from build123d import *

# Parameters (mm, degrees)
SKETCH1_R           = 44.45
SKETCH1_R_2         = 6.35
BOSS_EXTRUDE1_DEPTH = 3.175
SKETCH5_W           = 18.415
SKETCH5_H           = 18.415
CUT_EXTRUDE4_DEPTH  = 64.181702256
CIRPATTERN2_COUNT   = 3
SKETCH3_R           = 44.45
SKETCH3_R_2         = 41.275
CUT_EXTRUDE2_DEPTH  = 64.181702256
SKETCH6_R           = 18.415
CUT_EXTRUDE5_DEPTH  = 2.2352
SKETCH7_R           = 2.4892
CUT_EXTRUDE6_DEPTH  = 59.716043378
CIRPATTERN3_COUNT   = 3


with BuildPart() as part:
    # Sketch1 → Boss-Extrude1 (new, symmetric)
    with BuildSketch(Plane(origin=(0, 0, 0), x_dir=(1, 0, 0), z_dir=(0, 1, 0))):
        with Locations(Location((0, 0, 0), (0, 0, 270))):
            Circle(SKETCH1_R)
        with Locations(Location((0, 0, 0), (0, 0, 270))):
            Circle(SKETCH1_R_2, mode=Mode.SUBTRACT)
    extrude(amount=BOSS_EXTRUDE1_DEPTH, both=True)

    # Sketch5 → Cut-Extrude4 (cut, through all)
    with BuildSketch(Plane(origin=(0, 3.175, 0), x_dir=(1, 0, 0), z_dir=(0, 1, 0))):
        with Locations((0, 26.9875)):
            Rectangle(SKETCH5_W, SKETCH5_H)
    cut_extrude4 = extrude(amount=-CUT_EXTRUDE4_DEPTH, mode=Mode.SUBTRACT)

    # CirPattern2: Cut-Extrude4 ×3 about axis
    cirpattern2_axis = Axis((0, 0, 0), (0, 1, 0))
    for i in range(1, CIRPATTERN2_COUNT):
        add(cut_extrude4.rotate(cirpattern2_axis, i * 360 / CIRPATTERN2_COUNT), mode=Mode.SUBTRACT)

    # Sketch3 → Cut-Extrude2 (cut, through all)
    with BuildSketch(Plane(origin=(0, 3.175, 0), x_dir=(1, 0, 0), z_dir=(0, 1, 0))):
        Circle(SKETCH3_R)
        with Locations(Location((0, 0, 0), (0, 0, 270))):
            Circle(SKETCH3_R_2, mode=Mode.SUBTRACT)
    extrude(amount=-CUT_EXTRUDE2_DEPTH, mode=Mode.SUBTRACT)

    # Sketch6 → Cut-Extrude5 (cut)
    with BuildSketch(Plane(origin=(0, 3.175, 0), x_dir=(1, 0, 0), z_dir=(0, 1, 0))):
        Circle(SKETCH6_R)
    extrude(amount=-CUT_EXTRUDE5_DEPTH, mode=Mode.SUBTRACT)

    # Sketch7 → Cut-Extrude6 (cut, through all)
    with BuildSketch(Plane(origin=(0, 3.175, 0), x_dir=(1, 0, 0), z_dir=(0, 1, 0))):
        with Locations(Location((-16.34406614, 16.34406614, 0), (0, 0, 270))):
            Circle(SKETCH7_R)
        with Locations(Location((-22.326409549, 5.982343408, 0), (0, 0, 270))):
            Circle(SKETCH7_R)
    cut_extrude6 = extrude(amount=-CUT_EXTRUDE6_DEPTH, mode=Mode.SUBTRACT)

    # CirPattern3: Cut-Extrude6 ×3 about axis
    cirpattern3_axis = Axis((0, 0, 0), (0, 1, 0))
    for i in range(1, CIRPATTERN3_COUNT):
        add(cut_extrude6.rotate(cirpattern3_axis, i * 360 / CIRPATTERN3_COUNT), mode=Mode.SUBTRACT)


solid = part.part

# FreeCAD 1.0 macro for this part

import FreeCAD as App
import Part
import Sketcher
from FreeCAD import Vector
Q = App.Units.Quantity


def add_polygon(sketch, points):
    """Adds a closed chain of lines whose ends are joined by coincident constraints."""
    first, n = sketch.GeometryCount, len(points)
    for a, b in zip(points, points[1:] + points[:1]):
        sketch.addGeometry(Part.LineSegment(App.Vector(*a, 0), App.Vector(*b, 0)), False)
    for i in range(n):
        sketch.addConstraint(Sketcher.Constraint("Coincident", first + i, 2, first + (i + 1) % n, 1))

doc = App.newDocument("Part")
params = doc.addObject("Spreadsheet::Sheet", "Params")
for row, (alias, value) in enumerate([
    ("sketch1_diameter", "3.5 in"),
    ("sketch1_diameter2", "0.5 in"),
    ("pad1_length", "0.25 in"),
    ("sketch2_width", "0.725 in"),
    ("sketch3_diameter", "3.5 in"),
    ("sketch3_diameter2", "3.25 in"),
    ("sketch4_diameter", "1.45 in"),
    ("pocket3_length", "0.088 in"),
    ("sketch5_diameter", "0.196 in"),
], start=1):
    params.set(f"A{row}", alias)
    params.set(f"B{row}", "=" + value)
    params.setAlias(f"B{row}", alias)

body = doc.addObject("PartDesign::Body", "Body")

sketch1 = body.newObject("Sketcher::SketchObject", "Sketch")
sketch1.AttachmentSupport = (doc.getObject("XZ_Plane"), [""])
sketch1.MapMode = "FlatFace"
sketch1.addGeometry(Part.Circle(Vector(0, 0, 0), Vector(0, 0, 1), 44), False)
sketch1.addGeometry(Part.Circle(Vector(0, 0, 0), Vector(0, 0, 1), 6), False)
sketch1.addConstraint(Sketcher.Constraint("Coincident", 0, 3, -1, 1))
sketch1.addConstraint(Sketcher.Constraint("Coincident", 1, 3, -1, 1))
sketch1.addConstraint(Sketcher.Constraint("Diameter", 0, Q("3.5 in")))
sketch1.addConstraint(Sketcher.Constraint("Diameter", 1, Q("0.5 in")))
sketch1.setExpression("Constraints[2]", "Params.sketch1_diameter")
sketch1.setExpression("Constraints[3]", "Params.sketch1_diameter2")
pad1 = body.newObject("PartDesign::Pad", "Pad")
pad1.Profile = sketch1
pad1.setExpression("Length", "Params.pad1_length")
pad1.Midplane = True

sketch2 = body.newObject("Sketcher::SketchObject", "Sketch001")
sketch2.AttachmentSupport = (doc.getObject("XZ_Plane"), [""])
sketch2.MapMode = "FlatFace"
sketch2.AttachmentOffset = App.Placement(Vector(0, 0, -0.125 * 25.4), App.Rotation())
add_polygon(sketch2, [(-9, -36), (-9, -18), (9, -18), (9, -36)])
sketch2.addConstraint(Sketcher.Constraint("Vertical", 0))
sketch2.addConstraint(Sketcher.Constraint("Horizontal", 1))
sketch2.addConstraint(Sketcher.Constraint("Vertical", 2))
sketch2.addConstraint(Sketcher.Constraint("Horizontal", 3))
sketch2.addConstraint(Sketcher.Constraint("Equal", 3, 0))
sketch2.addConstraint(Sketcher.Constraint("DistanceY", 0, 2, -1, 1, Q("0.7 in")))
sketch2.addConstraint(Sketcher.Constraint("DistanceX", 1, 1, 1, 2, Q("0.725 in")))
sketch2.addConstraint(Sketcher.Constraint("DistanceX", 0, 2, -1, 1, Q("0.3625 in")))
sketch2.setExpression("Constraints[10]", "Params.sketch2_width")
pocket1 = body.newObject("PartDesign::Pocket", "Pocket")
pocket1.Profile = sketch2
pocket1.Type = "ThroughAll"
pocket1.Reversed = True
doc.recompute()

polarpattern = body.newObject("PartDesign::PolarPattern", "PolarPattern")
polarpattern.Originals = [pocket1]
polarpattern.Axis = (doc.getObject("Y_Axis"), [""])
polarpattern.Angle = 360
polarpattern.Occurrences = 3
body.Tip = polarpattern

sketch3 = body.newObject("Sketcher::SketchObject", "Sketch002")
sketch3.AttachmentSupport = (doc.getObject("XZ_Plane"), [""])
sketch3.MapMode = "FlatFace"
sketch3.AttachmentOffset = App.Placement(Vector(0, 0, -0.125 * 25.4), App.Rotation())
sketch3.addGeometry(Part.Circle(Vector(0, 0, 0), Vector(0, 0, 1), 44), False)
sketch3.addGeometry(Part.Circle(Vector(0, 0, 0), Vector(0, 0, 1), 41), False)
sketch3.addConstraint(Sketcher.Constraint("Coincident", 0, 3, -1, 1))
sketch3.addConstraint(Sketcher.Constraint("Coincident", 1, 3, -1, 1))
sketch3.addConstraint(Sketcher.Constraint("Diameter", 0, Q("3.5 in")))
sketch3.addConstraint(Sketcher.Constraint("Diameter", 1, Q("3.25 in")))
sketch3.setExpression("Constraints[2]", "Params.sketch3_diameter")
sketch3.setExpression("Constraints[3]", "Params.sketch3_diameter2")
pocket2 = body.newObject("PartDesign::Pocket", "Pocket001")
pocket2.Profile = sketch3
pocket2.Type = "ThroughAll"
pocket2.Reversed = True

sketch4 = body.newObject("Sketcher::SketchObject", "Sketch003")
sketch4.AttachmentSupport = (doc.getObject("XZ_Plane"), [""])
sketch4.MapMode = "FlatFace"
sketch4.AttachmentOffset = App.Placement(Vector(0, 0, -0.125 * 25.4), App.Rotation())
sketch4.addGeometry(Part.Circle(Vector(0, 0, 0), Vector(0, 0, 1), 18), False)
sketch4.addConstraint(Sketcher.Constraint("Coincident", 0, 3, -1, 1))
sketch4.addConstraint(Sketcher.Constraint("Diameter", 0, Q("1.45 in")))
sketch4.setExpression("Constraints[1]", "Params.sketch4_diameter")
pocket3 = body.newObject("PartDesign::Pocket", "Pocket002")
pocket3.Profile = sketch4
pocket3.setExpression("Length", "Params.pocket3_length")
pocket3.Reversed = True

sketch5 = body.newObject("Sketcher::SketchObject", "Sketch004")
sketch5.AttachmentSupport = (doc.getObject("XZ_Plane"), [""])
sketch5.MapMode = "FlatFace"
sketch5.AttachmentOffset = App.Placement(Vector(0, 0, -0.125 * 25.4), App.Rotation())
sketch5.addGeometry(Part.Circle(Vector(-16.3, -16.3, 0), Vector(0, 0, 1), 2.5), False)
sketch5.addGeometry(Part.Circle(Vector(-22.3, -6, 0), Vector(0, 0, 1), 2.5), False)
sketch5.addConstraint(Sketcher.Constraint("Equal", 0, 1))
sketch5.addConstraint(Sketcher.Constraint("Diameter", 0, Q("0.196 in")))
sketch5.addConstraint(Sketcher.Constraint("DistanceX", 1, 3, -1, 1, Q("22.32641 mm")))
sketch5.addConstraint(Sketcher.Constraint("DistanceX", 0, 3, -1, 1, Q("16.344066 mm")))
sketch5.addConstraint(Sketcher.Constraint("DistanceY", 0, 3, -1, 1, Q("16.344066 mm")))
sketch5.addConstraint(Sketcher.Constraint("DistanceY", 1, 3, -1, 1, Q("5.982343 mm")))
sketch5.setExpression("Constraints[1]", "Params.sketch5_diameter")
pocket4 = body.newObject("PartDesign::Pocket", "Pocket003")
pocket4.Profile = sketch5
pocket4.Type = "ThroughAll"
pocket4.Reversed = True
doc.recompute()

polarpattern2 = body.newObject("PartDesign::PolarPattern", "PolarPattern001")
polarpattern2.Originals = [pocket4]
polarpattern2.Axis = (doc.getObject("Y_Axis"), [""])
polarpattern2.Angle = 360
polarpattern2.Occurrences = 3
body.Tip = polarpattern2

doc.recompute()
